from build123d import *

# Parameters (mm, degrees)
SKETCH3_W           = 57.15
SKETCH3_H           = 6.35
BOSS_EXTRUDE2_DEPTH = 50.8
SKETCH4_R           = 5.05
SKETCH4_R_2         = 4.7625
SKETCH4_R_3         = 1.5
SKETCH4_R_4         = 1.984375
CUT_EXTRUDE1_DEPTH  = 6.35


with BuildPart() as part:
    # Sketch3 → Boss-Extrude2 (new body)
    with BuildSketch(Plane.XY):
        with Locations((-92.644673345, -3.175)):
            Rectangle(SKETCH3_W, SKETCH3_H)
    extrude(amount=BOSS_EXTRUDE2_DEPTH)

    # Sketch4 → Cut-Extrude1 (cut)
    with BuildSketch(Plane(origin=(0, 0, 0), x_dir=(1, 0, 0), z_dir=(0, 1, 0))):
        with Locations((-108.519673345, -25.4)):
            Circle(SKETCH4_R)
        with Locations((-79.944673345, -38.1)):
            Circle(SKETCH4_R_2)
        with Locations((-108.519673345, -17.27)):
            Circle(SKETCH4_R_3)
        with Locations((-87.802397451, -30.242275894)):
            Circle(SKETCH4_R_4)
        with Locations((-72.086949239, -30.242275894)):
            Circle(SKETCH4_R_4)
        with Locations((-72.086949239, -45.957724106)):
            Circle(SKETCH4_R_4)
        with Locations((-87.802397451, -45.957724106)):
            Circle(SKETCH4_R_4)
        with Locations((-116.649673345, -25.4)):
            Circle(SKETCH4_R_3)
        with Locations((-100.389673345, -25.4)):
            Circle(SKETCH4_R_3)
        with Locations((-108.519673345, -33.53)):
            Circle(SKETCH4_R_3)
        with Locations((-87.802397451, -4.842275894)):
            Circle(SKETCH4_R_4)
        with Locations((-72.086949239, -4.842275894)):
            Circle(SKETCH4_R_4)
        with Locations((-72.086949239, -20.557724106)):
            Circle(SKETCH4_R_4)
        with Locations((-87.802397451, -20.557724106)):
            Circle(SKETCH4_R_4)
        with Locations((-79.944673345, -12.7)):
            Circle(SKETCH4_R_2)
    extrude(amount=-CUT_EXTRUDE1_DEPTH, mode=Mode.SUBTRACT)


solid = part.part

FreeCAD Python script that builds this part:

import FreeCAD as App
import Part
import Sketcher
Q = App.Units.Quantity


def add_polygon(sketch, points):
    """Adds a closed chain of lines whose ends are joined by coincident constraints."""
    first, n = sketch.GeometryCount, len(points)
    for a, b in zip(points, points[1:] + points[:1]):
        sketch.addGeometry(Part.LineSegment(App.Vector(*a, 0), App.Vector(*b, 0)), False)
    for i in range(n):
        sketch.addConstraint(Sketcher.Constraint("Coincident", first + i, 2, first + (i + 1) % n, 1))

doc = App.newDocument("Part")
params = doc.addObject("Spreadsheet::Sheet", "Params")
for row, (alias, value) in enumerate([
    ("sketch1_width", "2.25 in"),
    ("sketch1_height", "0.25 in"),
    ("pad1_length", "2 in"),
    ("sketch2_diameter", "0.375 in"),
    ("sketch2_diameter2", "0.15625 in"),
    ("pocket1_length", "0.25 in"),
], start=1):
    params.set(f"A{row}", alias)
    params.set(f"B{row}", "=" + value)
    params.setAlias(f"B{row}", alias)

body = doc.addObject("PartDesign::Body", "Body")

sketch1 = body.newObject("Sketcher::SketchObject", "Sketch")
sketch1.AttachmentSupport = (doc.getObject("XY_Plane"), [""])
sketch1.MapMode = "FlatFace"
add_polygon(sketch1, [(-121.219673, 0), (-121.219673, -6.35), (-64.069673, -6.35), (-64.069673, 0)])
sketch1.addConstraint(Sketcher.Constraint("Vertical", 0))
sketch1.addConstraint(Sketcher.Constraint("Horizontal", 1))
sketch1.addConstraint(Sketcher.Constraint("Vertical", 2))
sketch1.addConstraint(Sketcher.Constraint("Horizontal", 3))
sketch1.addConstraint(Sketcher.Constraint("PointOnObject", 2, 2, -1))
sketch1.addConstraint(Sketcher.Constraint("DistanceX", 1, 1, 1, 2, Q("2.25 in")))
sketch1.addConstraint(Sketcher.Constraint("DistanceY", 0, 2, 0, 1, Q("0.25 in")))
sketch1.addConstraint(Sketcher.Constraint("DistanceX", 0, 2, -1, 1, Q("121.219673 mm")))
sketch1.setExpression("Constraints[9]", "Params.sketch1_width")
sketch1.setExpression("Constraints[10]", "Params.sketch1_height")
pad1 = body.newObject("PartDesign::Pad", "Pad")
pad1.Profile = sketch1
pad1.setExpression("Length", "Params.pad1_length")

sketch2 = body.newObject("Sketcher::SketchObject", "Sketch001")
sketch2.AttachmentSupport = (doc.getObject("XZ_Plane"), [""])
sketch2.MapMode = "FlatFace"
sketch2.addGeometry(Part.Circle(App.Vector(-108.519673, 25.4, 0), App.Vector(0, 0, 1), 5.05), False)
sketch2.addGeometry(Part.Circle(App.Vector(-79.944673, 38.1, 0), App.Vector(0, 0, 1), 4.7625), False)
sketch2.addGeometry(Part.Circle(App.Vector(-108.519673, 17.27, 0), App.Vector(0, 0, 1), 1.5), False)
sketch2.addGeometry(Part.Circle(App.Vector(-87.802397, 30.242276, 0), App.Vector(0, 0, 1), 1.984375), False)
sketch2.addGeometry(Part.Circle(App.Vector(-72.086949, 30.242276, 0), App.Vector(0, 0, 1), 1.984375), False)
sketch2.addGeometry(Part.Circle(App.Vector(-72.086949, 45.957724, 0), App.Vector(0, 0, 1), 1.984375), False)
sketch2.addGeometry(Part.Circle(App.Vector(-87.802397, 45.957724, 0), App.Vector(0, 0, 1), 1.984375), False)
sketch2.addGeometry(Part.Circle(App.Vector(-116.649673, 25.4, 0), App.Vector(0, 0, 1), 1.5), False)
sketch2.addGeometry(Part.Circle(App.Vector(-100.389673, 25.4, 0), App.Vector(0, 0, 1), 1.5), False)
sketch2.addGeometry(Part.Circle(App.Vector(-108.519673, 33.53, 0), App.Vector(0, 0, 1), 1.5), False)
sketch2.addGeometry(Part.Circle(App.Vector(-87.802397, 4.842276, 0), App.Vector(0, 0, 1), 1.984375), False)
sketch2.addGeometry(Part.Circle(App.Vector(-72.086949, 4.842276, 0), App.Vector(0, 0, 1), 1.984375), False)
sketch2.addGeometry(Part.Circle(App.Vector(-72.086949, 20.557724, 0), App.Vector(0, 0, 1), 1.984375), False)
sketch2.addGeometry(Part.Circle(App.Vector(-87.802397, 20.557724, 0), App.Vector(0, 0, 1), 1.984375), False)
sketch2.addGeometry(Part.Circle(App.Vector(-79.944673, 12.7, 0), App.Vector(0, 0, 1), 4.7625), False)
sketch2.addConstraint(Sketcher.Constraint("Equal", 3, 4))
sketch2.addConstraint(Sketcher.Constraint("Equal", 4, 5))
sketch2.addConstraint(Sketcher.Constraint("Equal", 5, 6))
sketch2.addConstraint(Sketcher.Constraint("Equal", 2, 7))
sketch2.addConstraint(Sketcher.Constraint("Equal", 7, 8))
sketch2.addConstraint(Sketcher.Constraint("Equal", 8, 9))
sketch2.addConstraint(Sketcher.Constraint("Equal", 6, 10))
sketch2.addConstraint(Sketcher.Constraint("Equal", 10, 11))
sketch2.addConstraint(Sketcher.Constraint("Equal", 11, 12))
sketch2.addConstraint(Sketcher.Constraint("Equal", 12, 13))
sketch2.addConstraint(Sketcher.Constraint("Equal", 1, 14))
sketch2.addConstraint(Sketcher.Constraint("Horizontal", 3, 3, 4, 3))
sketch2.addConstraint(Sketcher.Constraint("Horizontal", 5, 3, 6, 3))
sketch2.addConstraint(Sketcher.Constraint("Horizontal", 0, 3, 7, 3))
sketch2.addConstraint(Sketcher.Constraint("Horizontal", 7, 3, 8, 3))
sketch2.addConstraint(Sketcher.Constraint("Horizontal", 10, 3, 11, 3))
sketch2.addConstraint(Sketcher.Constraint("Horizontal", 12, 3, 13, 3))
sketch2.addConstraint(Sketcher.Constraint("Vertical", 0, 3, 2, 3))
sketch2.addConstraint(Sketcher.Constraint("Vertical", 4, 3, 5, 3))
sketch2.addConstraint(Sketcher.Constraint("Vertical", 3, 3, 6, 3))
sketch2.addConstraint(Sketcher.Constraint("Vertical", 2, 3, 9, 3))
sketch2.addConstraint(Sketcher.Constraint("Vertical", 6, 3, 10, 3))
sketch2.addConstraint(Sketcher.Constraint("Vertical", 5, 3, 11, 3))
sketch2.addConstraint(Sketcher.Constraint("Vertical", 11, 3, 12, 3))
sketch2.addConstraint(Sketcher.Constraint("Vertical", 10, 3, 13, 3))
sketch2.addConstraint(Sketcher.Constraint("Vertical", 1, 3, 14, 3))
sketch2.addConstraint(Sketcher.Constraint("Diameter", 1, Q("0.375 in")))
sketch2.addConstraint(Sketcher.Constraint("Diameter", 3, Q("0.15625 in")))
sketch2.addConstraint(Sketcher.Constraint("DistanceY", -1, 1, 0, 3, Q("1 in")))
sketch2.addConstraint(Sketcher.Constraint("DistanceY", 10, 3, 3, 3, Q("1 in")))
sketch2.addConstraint(Sketcher.Constraint("DistanceY", -1, 1, 1, 3, Q("1.5 in")))
sketch2.addConstraint(Sketcher.Constraint("DistanceY", -1, 1, 14, 3, Q("0.5 in")))
sketch2.addConstraint(Sketcher.Constraint("Diameter", 0, Q("10.1 mm")))
sketch2.addConstraint(Sketcher.Constraint("Diameter", 2, Q("3 mm")))
sketch2.addConstraint(Sketcher.Constraint("DistanceX", 0, 3, 1, 3, Q("1.125 in")))
sketch2.addConstraint(Sketcher.Constraint("DistanceY", -1, 1, 2, 3, Q("17.27 mm")))
sketch2.addConstraint(Sketcher.Constraint("DistanceY", -1, 1, 9, 3, Q("33.53 mm")))
sketch2.addConstraint(Sketcher.Constraint("DistanceX", 7, 3, 0, 3, Q("8.13 mm")))
sketch2.addConstraint(Sketcher.Constraint("DistanceX", 0, 3, 8, 3, Q("8.13 mm")))
sketch2.addConstraint(Sketcher.Constraint("DistanceX", 4, 3, -1, 1, Q("72.086949 mm")))
sketch2.addConstraint(Sketcher.Constraint("DistanceX", 3, 3, 4, 3, Q("15.715448 mm")))
sketch2.addConstraint(Sketcher.Constraint("DistanceY", 4, 3, 5, 3, Q("15.715448 mm")))
sketch2.addConstraint(Sketcher.Constraint("DistanceY", 12, 3, 4, 3, Q("9.684552 mm")))
sketch2.addConstraint(Sketcher.Constraint("DistanceX", 0, 3, -1, 1, Q("108.519673 mm")))
sketch2.addConstraint(Sketcher.Constraint("DistanceY", -1, 1, 3, 3, Q("30.242276 mm")))
sketch2.setExpression("Constraints[26]", "Params.sketch2_diameter")
sketch2.setExpression("Constraints[27]", "Params.sketch2_diameter2")
pocket1 = body.newObject("PartDesign::Pocket", "Pocket")
pocket1.Profile = sketch2
pocket1.setExpression("Length", "Params.pocket1_length")
pocket1.Reversed = True

doc.recompute()
